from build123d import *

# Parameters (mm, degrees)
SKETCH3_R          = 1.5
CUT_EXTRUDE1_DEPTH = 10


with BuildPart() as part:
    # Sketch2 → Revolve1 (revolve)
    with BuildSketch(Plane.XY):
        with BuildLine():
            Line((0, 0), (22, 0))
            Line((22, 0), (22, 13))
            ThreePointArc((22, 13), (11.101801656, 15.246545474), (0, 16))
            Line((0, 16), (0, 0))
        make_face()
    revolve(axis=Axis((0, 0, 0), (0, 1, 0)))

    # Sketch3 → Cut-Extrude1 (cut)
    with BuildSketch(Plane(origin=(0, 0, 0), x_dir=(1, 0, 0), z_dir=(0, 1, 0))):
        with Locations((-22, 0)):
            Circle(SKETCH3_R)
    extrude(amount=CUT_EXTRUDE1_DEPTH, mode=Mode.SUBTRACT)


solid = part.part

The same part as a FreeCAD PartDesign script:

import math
import FreeCAD as App
import Part
import Sketcher

V = App.Vector

doc = App.newDocument("Part")
body = doc.addObject("PartDesign::Body", "Body")

sketch1 = body.newObject("Sketcher::SketchObject", "Sketch")
sketch1.AttachmentSupport = (doc.getObject("XY_Plane"), [""])
sketch1.MapMode = "FlatFace"
sketch1.addGeometry(Part.LineSegment(V(0, 0, 0), V(22, 0, 0)), False)
sketch1.addGeometry(Part.LineSegment(V(22, 0, 0), V(22, 13, 0)), False)
sketch1.addGeometry(Part.ArcOfCircle(Part.Circle(V(0, -66, 0), V(0, 0, 1), 82), math.radians(74.47), math.radians(90)), False)
sketch1.addGeometry(Part.LineSegment(V(0, 16, 0), V(0, 0, 0)), False)
sketch1.addConstraint(Sketcher.Constraint("Coincident", 0, 2, 1, 1))
sketch1.addConstraint(Sketcher.Constraint("Coincident", 1, 2, 2, 1))
sketch1.addConstraint(Sketcher.Constraint("Coincident", 2, 2, 3, 1))
sketch1.addConstraint(Sketcher.Constraint("Coincident", 3, 2, 0, 1))
sketch1.addConstraint(Sketcher.Constraint("Horizontal", 0))
sketch1.addConstraint(Sketcher.Constraint("Vertical", 1))
sketch1.addConstraint(Sketcher.Constraint("Vertical", 3))
sketch1.addConstraint(Sketcher.Constraint("Coincident", 3, 2, -1, 1))
sketch1.addConstraint(Sketcher.Constraint("PointOnObject", 2, 3, -2))
sketch1.addConstraint(Sketcher.Constraint("DistanceX", 0, 1, 0, 2, 22.0))
sketch1.addConstraint(Sketcher.Constraint("DistanceY", 1, 1, 1, 2, 13.0))
sketch1.addConstraint(Sketcher.Constraint("DistanceY", 3, 2, 3, 1, 16.0))
revolution = body.newObject("PartDesign::Revolution", "Revolution")
revolution.Profile = sketch1
revolution.ReferenceAxis = (sketch1, ["V_Axis"])
revolution.Angle = 360

sketch2 = body.newObject("Sketcher::SketchObject", "Sketch001")
sketch2.AttachmentSupport = (doc.getObject("XZ_Plane"), [""])
sketch2.MapMode = "FlatFace"
sketch2.addGeometry(Part.Circle(V(-22, 0, 0), V(0, 0, 1), 1.5), False)
sketch2.addConstraint(Sketcher.Constraint("PointOnObject", 0, 3, -1))
sketch2.addConstraint(Sketcher.Constraint("Diameter", 0, 3.0))
sketch2.addConstraint(Sketcher.Constraint("DistanceX", 0, 3, -1, 1, 22.0))
pocket1 = body.newObject("PartDesign::Pocket", "Pocket")
pocket1.Profile = sketch2
pocket1.Length = 10

doc.recompute()
